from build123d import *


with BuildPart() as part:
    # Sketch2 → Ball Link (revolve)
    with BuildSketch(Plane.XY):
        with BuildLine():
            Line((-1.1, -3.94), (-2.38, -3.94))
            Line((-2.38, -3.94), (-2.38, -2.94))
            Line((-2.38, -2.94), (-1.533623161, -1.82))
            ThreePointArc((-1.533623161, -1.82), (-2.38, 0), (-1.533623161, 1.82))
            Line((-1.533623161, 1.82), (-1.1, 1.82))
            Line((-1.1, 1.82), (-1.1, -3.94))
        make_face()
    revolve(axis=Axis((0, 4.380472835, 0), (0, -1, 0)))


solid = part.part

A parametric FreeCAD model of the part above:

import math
import FreeCAD as App
import Part
import Sketcher

V = App.Vector

doc = App.newDocument("Part")
body = doc.addObject("PartDesign::Body", "Body")

sketch1 = body.newObject("Sketcher::SketchObject", "Sketch")
sketch1.AttachmentSupport = (doc.getObject("XY_Plane"), [""])
sketch1.MapMode = "FlatFace"
sketch1.addGeometry([
    Part.LineSegment(V(-2.38, -3.94, 0), V(-1.1, -3.94, 0)),
    Part.LineSegment(V(-1.1, -3.94, 0), V(-1.1, 1.82, 0)),
    Part.LineSegment(V(-1.1, 1.82, 0), V(-1.53, 1.82, 0)),
    Part.ArcOfCircle(Part.Circle(V(0, 0, 0), V(0, 0, 1), 2.38), math.radians(130), math.radians(230)),
    Part.LineSegment(V(-1.53, -1.82, 0), V(-2.38, -2.94, 0)),
    Part.LineSegment(V(-2.38, -2.94, 0), V(-2.38, -3.94, 0)),
], False)
sketch1.addConstraint([
    Sketcher.Constraint("Coincident", 0, 2, 1, 1),
    Sketcher.Constraint("Coincident", 1, 2, 2, 1),
    Sketcher.Constraint("Coincident", 2, 2, 3, 1),
    Sketcher.Constraint("Coincident", 3, 2, 4, 1),
    Sketcher.Constraint("Coincident", 4, 2, 5, 1),
    Sketcher.Constraint("Coincident", 5, 2, 0, 1),
    Sketcher.Constraint("Horizontal", 0),
    Sketcher.Constraint("Vertical", 1),
    Sketcher.Constraint("Horizontal", 2),
    Sketcher.Constraint("Vertical", 5),
    Sketcher.Constraint("Coincident", 3, 3, -1, 1),
    Sketcher.Constraint("Vertical", 2, 2, 3, 2),
    Sketcher.Constraint("DistanceY", 5, 2, 5, 1, 1.0),
    Sketcher.Constraint("Radius", 3, 2.38),
    Sketcher.Constraint("DistanceX", 0, 1, 0, 2, 1.28),
    Sketcher.Constraint("DistanceY", 1, 1, 1, 2, 5.76),
    Sketcher.Constraint("DistanceX", 0, 2, -1, 1, 1.1),
    Sketcher.Constraint("DistanceY", 0, 2, -1, 1, 3.94),
])
revolution = body.newObject("PartDesign::Revolution", "Revolution")
revolution.Profile = sketch1
revolution.ReferenceAxis = (sketch1, ["V_Axis"])
revolution.Angle = 360

doc.recompute()
